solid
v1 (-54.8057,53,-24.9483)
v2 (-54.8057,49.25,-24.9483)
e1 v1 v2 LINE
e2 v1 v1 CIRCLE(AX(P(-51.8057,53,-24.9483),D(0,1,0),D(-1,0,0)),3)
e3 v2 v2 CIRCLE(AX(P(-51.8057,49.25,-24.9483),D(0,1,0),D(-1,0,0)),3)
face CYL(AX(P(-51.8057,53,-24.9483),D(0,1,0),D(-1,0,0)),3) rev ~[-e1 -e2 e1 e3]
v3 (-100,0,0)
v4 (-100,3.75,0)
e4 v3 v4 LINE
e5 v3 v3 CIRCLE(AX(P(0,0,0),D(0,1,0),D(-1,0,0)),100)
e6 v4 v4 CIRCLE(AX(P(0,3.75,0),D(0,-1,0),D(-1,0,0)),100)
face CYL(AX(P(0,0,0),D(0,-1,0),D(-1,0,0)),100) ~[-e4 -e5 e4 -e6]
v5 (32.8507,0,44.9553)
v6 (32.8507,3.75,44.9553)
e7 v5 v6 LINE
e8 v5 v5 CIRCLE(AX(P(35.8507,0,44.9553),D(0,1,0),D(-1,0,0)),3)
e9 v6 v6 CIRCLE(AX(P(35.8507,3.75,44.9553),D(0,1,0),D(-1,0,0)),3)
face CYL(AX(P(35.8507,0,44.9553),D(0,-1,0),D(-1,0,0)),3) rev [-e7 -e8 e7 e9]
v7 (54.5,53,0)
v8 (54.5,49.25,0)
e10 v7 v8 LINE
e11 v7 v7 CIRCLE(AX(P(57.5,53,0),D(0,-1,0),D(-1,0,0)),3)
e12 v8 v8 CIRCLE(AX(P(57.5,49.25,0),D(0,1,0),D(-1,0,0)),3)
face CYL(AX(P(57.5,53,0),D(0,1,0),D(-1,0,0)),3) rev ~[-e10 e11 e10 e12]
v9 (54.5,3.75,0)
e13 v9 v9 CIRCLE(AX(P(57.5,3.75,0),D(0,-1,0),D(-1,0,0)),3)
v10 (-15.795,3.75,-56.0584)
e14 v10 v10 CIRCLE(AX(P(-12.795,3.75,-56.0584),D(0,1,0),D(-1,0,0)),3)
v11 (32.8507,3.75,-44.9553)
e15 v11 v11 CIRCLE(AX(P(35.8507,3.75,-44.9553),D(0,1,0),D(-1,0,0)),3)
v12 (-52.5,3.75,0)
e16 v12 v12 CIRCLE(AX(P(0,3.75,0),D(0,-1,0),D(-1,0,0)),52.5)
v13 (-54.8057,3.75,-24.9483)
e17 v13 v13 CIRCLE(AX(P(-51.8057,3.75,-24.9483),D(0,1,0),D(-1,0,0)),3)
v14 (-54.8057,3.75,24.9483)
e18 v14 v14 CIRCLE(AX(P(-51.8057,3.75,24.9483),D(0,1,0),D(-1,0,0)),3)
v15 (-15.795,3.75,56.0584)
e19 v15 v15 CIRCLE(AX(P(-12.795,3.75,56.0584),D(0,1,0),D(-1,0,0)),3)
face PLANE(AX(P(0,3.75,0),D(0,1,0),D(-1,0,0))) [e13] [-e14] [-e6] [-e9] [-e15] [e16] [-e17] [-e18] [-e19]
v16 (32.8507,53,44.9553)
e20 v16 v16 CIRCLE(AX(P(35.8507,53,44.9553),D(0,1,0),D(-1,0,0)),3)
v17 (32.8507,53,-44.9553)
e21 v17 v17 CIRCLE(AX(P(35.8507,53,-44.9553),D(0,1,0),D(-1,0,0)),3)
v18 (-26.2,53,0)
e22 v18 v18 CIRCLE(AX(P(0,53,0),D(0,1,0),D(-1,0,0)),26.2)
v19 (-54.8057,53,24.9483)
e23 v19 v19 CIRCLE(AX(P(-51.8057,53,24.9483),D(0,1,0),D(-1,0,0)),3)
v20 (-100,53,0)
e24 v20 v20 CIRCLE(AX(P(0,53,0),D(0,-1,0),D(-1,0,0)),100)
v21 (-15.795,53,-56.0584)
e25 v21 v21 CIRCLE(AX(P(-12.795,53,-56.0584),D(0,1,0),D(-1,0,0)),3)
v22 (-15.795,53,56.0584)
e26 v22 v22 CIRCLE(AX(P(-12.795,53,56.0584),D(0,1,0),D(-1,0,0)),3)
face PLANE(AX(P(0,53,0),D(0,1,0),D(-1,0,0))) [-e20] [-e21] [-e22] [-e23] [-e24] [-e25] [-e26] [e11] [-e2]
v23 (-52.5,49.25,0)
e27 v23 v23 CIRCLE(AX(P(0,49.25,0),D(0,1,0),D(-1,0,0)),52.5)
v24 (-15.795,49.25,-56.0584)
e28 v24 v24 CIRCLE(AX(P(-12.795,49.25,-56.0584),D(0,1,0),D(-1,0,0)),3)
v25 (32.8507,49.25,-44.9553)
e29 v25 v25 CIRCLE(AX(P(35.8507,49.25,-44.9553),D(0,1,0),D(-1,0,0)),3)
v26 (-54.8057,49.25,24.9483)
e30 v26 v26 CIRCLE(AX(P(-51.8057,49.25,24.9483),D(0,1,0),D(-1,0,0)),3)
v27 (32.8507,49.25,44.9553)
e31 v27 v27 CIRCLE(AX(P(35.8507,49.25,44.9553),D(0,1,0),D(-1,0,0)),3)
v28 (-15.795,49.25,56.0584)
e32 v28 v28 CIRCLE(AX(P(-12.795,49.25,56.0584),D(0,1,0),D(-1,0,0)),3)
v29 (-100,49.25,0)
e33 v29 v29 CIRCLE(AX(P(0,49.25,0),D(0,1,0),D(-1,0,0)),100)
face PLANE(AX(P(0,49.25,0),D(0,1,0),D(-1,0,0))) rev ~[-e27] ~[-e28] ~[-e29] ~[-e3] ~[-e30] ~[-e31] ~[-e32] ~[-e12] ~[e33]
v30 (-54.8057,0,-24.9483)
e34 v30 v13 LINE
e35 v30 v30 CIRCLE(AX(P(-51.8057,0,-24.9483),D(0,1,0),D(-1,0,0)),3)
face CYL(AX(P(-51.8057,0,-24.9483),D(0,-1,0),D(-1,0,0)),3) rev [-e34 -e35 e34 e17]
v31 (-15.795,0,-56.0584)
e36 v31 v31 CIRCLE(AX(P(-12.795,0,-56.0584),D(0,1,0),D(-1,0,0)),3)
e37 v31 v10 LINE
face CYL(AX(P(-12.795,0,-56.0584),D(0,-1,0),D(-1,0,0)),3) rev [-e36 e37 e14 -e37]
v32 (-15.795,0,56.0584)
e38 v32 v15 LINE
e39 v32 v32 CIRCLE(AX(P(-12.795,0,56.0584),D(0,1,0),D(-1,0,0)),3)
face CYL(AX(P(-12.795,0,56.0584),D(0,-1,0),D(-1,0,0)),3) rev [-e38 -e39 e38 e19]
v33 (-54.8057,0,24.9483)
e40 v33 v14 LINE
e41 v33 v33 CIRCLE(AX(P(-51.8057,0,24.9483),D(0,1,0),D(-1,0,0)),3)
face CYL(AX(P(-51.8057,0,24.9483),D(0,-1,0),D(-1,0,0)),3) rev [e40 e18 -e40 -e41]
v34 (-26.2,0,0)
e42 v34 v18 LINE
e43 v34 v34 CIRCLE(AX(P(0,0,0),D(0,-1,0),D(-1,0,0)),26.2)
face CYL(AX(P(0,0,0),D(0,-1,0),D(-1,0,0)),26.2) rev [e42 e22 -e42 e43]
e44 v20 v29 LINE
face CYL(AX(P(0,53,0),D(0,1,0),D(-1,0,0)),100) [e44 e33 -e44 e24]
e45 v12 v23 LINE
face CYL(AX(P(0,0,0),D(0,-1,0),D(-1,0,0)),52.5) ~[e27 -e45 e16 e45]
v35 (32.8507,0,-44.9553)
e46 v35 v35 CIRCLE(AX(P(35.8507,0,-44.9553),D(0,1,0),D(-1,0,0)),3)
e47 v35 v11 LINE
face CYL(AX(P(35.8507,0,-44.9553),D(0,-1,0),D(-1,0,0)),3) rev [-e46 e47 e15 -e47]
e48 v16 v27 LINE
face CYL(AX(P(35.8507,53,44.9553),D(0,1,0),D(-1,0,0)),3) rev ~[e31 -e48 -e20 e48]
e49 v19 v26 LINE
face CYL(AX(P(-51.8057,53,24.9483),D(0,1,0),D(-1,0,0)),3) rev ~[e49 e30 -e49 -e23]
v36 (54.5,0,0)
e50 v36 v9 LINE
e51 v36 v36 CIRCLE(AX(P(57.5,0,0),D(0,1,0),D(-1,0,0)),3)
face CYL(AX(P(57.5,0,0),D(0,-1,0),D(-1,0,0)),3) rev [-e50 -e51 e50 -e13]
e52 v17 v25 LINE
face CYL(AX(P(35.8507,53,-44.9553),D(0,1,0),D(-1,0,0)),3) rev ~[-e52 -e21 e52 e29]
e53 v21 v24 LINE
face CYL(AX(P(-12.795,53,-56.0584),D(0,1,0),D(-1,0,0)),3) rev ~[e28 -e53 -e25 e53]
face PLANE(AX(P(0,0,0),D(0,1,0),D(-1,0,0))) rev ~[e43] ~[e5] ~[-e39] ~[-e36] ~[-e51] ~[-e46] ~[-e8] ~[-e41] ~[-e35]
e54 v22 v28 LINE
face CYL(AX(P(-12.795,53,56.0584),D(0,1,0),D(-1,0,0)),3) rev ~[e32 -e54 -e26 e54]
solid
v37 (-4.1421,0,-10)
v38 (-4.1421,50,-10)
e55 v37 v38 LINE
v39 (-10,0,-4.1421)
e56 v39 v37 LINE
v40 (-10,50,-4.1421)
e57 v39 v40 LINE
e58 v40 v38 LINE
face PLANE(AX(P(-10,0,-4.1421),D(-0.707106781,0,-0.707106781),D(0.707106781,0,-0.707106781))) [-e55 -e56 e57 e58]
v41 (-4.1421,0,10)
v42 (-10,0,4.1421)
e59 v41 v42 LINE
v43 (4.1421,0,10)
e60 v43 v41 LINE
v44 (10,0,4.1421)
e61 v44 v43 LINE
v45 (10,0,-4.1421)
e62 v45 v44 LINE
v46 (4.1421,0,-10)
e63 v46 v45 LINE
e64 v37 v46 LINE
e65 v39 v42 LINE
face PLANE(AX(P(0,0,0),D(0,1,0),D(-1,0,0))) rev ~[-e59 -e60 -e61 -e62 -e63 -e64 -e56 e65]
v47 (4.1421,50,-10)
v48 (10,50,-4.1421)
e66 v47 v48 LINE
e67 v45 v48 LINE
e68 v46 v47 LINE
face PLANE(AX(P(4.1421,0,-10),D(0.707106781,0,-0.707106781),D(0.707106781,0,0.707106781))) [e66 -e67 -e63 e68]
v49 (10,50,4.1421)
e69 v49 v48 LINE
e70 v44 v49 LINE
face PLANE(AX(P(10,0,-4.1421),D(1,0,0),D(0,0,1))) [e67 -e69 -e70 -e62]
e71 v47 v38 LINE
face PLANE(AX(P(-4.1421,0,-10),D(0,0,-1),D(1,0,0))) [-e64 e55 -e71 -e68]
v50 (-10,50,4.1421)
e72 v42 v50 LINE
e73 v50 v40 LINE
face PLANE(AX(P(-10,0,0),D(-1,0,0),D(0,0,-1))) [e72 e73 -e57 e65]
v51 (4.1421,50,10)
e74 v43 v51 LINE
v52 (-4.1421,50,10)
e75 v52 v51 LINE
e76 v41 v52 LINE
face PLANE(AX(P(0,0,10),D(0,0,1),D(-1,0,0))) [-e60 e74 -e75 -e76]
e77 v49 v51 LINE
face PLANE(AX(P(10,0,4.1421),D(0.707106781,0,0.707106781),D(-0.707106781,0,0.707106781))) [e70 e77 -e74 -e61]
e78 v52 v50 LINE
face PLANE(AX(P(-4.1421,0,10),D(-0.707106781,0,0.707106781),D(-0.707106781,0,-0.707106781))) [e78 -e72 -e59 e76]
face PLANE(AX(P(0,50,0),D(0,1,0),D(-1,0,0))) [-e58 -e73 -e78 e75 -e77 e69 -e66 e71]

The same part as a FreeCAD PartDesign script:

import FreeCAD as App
import Part
import Sketcher
from FreeCAD import Vector
Q = App.Units.Quantity


def add_polygon(sketch, points):
    """Adds a closed chain of lines whose ends are joined by coincident constraints."""
    first, n = sketch.GeometryCount, len(points)
    for a, b in zip(points, points[1:] + points[:1]):
        sketch.addGeometry(Part.LineSegment(App.Vector(*a, 0), App.Vector(*b, 0)), False)
    for i in range(n):
        sketch.addConstraint(Sketcher.Constraint("Coincident", first + i, 2, first + (i + 1) % n, 1))

doc = App.newDocument("Part")
body = doc.addObject("PartDesign::Body", "Body")
body.AllowCompound = True

# Sketch on XZ plane
sketch1 = body.newObject("Sketcher::SketchObject", "Sketch")
sketch1.AttachmentSupport = (doc.getObject("XZ_Plane"), [""])
sketch1.MapMode = "FlatFace"
sketch1.addGeometry([
    Part.Circle(Vector(0, 0, 0), Vector(0, 0, 1), 100),  # 0
    Part.Circle(Vector(0, 0, 0), Vector(0, 0, 1), 52.5),  # 1
    Part.Circle(Vector(-12.8, -56.1, 0), Vector(0, 0, 1), 3),  # 2
    Part.Circle(Vector(-51.8, -24.9, 0), Vector(0, 0, 1), 3),  # 3
    Part.Circle(Vector(-12.8, 56.1, 0), Vector(0, 0, 1), 3),  # 4
    Part.Circle(Vector(-51.8, 24.9, 0), Vector(0, 0, 1), 3),  # 5
    Part.Circle(Vector(35.9, -45, 0), Vector(0, 0, 1), 3),  # 6
    Part.Circle(Vector(57.5, 0, 0), Vector(0, 0, 1), 3),  # 7
    Part.Circle(Vector(35.9, 45, 0), Vector(0, 0, 1), 3),  # 8
], False)
sketch1.addConstraint([
    Sketcher.Constraint("Coincident", 0, 3, -1, 1),
    Sketcher.Constraint("Coincident", 1, 3, -1, 1),
    Sketcher.Constraint("Equal", 2, 3),
    Sketcher.Constraint("Equal", 3, 4),
    Sketcher.Constraint("Equal", 4, 5),
    Sketcher.Constraint("Equal", 5, 6),
    Sketcher.Constraint("Equal", 6, 7),
    Sketcher.Constraint("Equal", 7, 8),
    Sketcher.Constraint("Symmetric", 2, 3, 4, 3, -1),
    Sketcher.Constraint("Symmetric", 3, 3, 5, 3, -1),
    Sketcher.Constraint("Symmetric", 6, 3, 8, 3, -1),
    Sketcher.Constraint("PointOnObject", 7, 3, -1),
    Sketcher.Constraint("Diameter", 0, Q("200 mm")),
    Sketcher.Constraint("Diameter", 1, Q("105 mm")),
    Sketcher.Constraint("Diameter", 2, Q("6 mm")),
    Sketcher.Constraint("DistanceX", -1, 1, 7, 3, Q("57.5 mm")),
    Sketcher.Constraint("DistanceY", 2, 3, 3, 3, Q("31.11 mm")),
    Sketcher.Constraint("DistanceX", 2, 3, -1, 1, Q("12.795 mm")),
    Sketcher.Constraint("DistanceY", 2, 3, 6, 3, Q("11.103 mm")),
    Sketcher.Constraint("DistanceY", 2, 3, -1, 1, Q("56.0584 mm")),
    Sketcher.Constraint("DistanceX", 3, 3, -1, 1, Q("51.8057 mm")),
    Sketcher.Constraint("DistanceX", -1, 1, 6, 3, Q("35.8507 mm")),
])
pad1 = body.newObject("PartDesign::Pad", "Pad")
pad1.Profile = sketch1
pad1.Length = 3.75
pad1.Reversed = True

# Sketch on XZ plane
sketch2 = body.newObject("Sketcher::SketchObject", "Sketch001")
sketch2.AttachmentSupport = (doc.getObject("XZ_Plane"), [""])
sketch2.MapMode = "FlatFace"
sketch2.addGeometry([
    Part.Circle(Vector(0, 0, 0), Vector(0, 0, 1), 52),
    Part.Circle(Vector(0, 0, 0), Vector(0, 0, 1), 26),
], False)
sketch2.addConstraint([
    Sketcher.Constraint("Coincident", 0, 3, -1, 1),
    Sketcher.Constraint("Coincident", 1, 3, -1, 1),
    Sketcher.Constraint("Diameter", 0, Q("105 mm")),
    Sketcher.Constraint("Diameter", 1, Q("52.4 mm")),
])
pad2 = body.newObject("PartDesign::Pad", "Pad001")
pad2.Profile = sketch2
pad2.Length = 53
pad2.Reversed = True

# Sketch on XZ plane
sketch3 = body.newObject("Sketcher::SketchObject", "Sketch002")
sketch3.AttachmentSupport = (doc.getObject("XZ_Plane"), [""])
sketch3.MapMode = "FlatFace"
sketch3.AttachmentOffset = App.Placement(Vector(0, 0, -53), App.Rotation())
sketch3.addGeometry([
    Part.Circle(Vector(0, 0, 0), Vector(0, 0, 1), 100),  # 0
    Part.Circle(Vector(0, 0, 0), Vector(0, 0, 1), 52.5),  # 1
    Part.Circle(Vector(-12.8, -56.1, 0), Vector(0, 0, 1), 3),  # 2
    Part.Circle(Vector(-51.8, -24.9, 0), Vector(0, 0, 1), 3),  # 3
    Part.Circle(Vector(-12.8, 56.1, 0), Vector(0, 0, 1), 3),  # 4
    Part.Circle(Vector(-51.8, 24.9, 0), Vector(0, 0, 1), 3),  # 5
    Part.Circle(Vector(35.9, -45, 0), Vector(0, 0, 1), 3),  # 6
    Part.Circle(Vector(57.5, 0, 0), Vector(0, 0, 1), 3),  # 7
    Part.Circle(Vector(35.9, 45, 0), Vector(0, 0, 1), 3),  # 8
], False)
sketch3.addConstraint([
    Sketcher.Constraint("Coincident", 0, 3, -1, 1),
    Sketcher.Constraint("Coincident", 1, 3, -1, 1),
    Sketcher.Constraint("Equal", 2, 3),
    Sketcher.Constraint("Equal", 3, 4),
    Sketcher.Constraint("Equal", 4, 5),
    Sketcher.Constraint("Equal", 5, 6),
    Sketcher.Constraint("Equal", 6, 7),
    Sketcher.Constraint("Equal", 7, 8),
    Sketcher.Constraint("Symmetric", 2, 3, 4, 3, -1),
    Sketcher.Constraint("Symmetric", 3, 3, 5, 3, -1),
    Sketcher.Constraint("Symmetric", 6, 3, 8, 3, -1),
    Sketcher.Constraint("PointOnObject", 7, 3, -1),
    Sketcher.Constraint("Diameter", 0, Q("200 mm")),
    Sketcher.Constraint("Diameter", 1, Q("105 mm")),
    Sketcher.Constraint("Diameter", 2, Q("6 mm")),
    Sketcher.Constraint("DistanceX", -1, 1, 7, 3, Q("57.5 mm")),
    Sketcher.Constraint("DistanceY", 2, 3, 3, 3, Q("31.11 mm")),
    Sketcher.Constraint("DistanceX", 2, 3, -1, 1, Q("12.795 mm")),
    Sketcher.Constraint("DistanceY", 2, 3, 6, 3, Q("11.103 mm")),
    Sketcher.Constraint("DistanceY", 2, 3, -1, 1, Q("56.0584 mm")),
    Sketcher.Constraint("DistanceX", 3, 3, -1, 1, Q("51.8057 mm")),
    Sketcher.Constraint("DistanceX", -1, 1, 6, 3, Q("35.8507 mm")),
])
pad3 = body.newObject("PartDesign::Pad", "Pad002")
pad3.Profile = sketch3
pad3.Length = 3.75

# Sketch on XZ plane
sketch4 = body.newObject("Sketcher::SketchObject", "Sketch003")
sketch4.AttachmentSupport = (doc.getObject("XZ_Plane"), [""])
sketch4.MapMode = "FlatFace"
add_polygon(sketch4, [(-10, -4), (-10, 4), (-4, 10), (4, 10), (10, 4), (10, -4), (4, -10), (-4, -10)])  # lines 0-7
sketch4.addConstraint([
    Sketcher.Constraint("Vertical", 0),
    Sketcher.Constraint("Horizontal", 2),
    Sketcher.Constraint("Vertical", 4),
    Sketcher.Constraint("Horizontal", 6),
    Sketcher.Constraint("Symmetric", 0, 2, 4, 2, -1, 1),
    Sketcher.Constraint("Symmetric", 1, 2, 5, 2, -1, 1),
    Sketcher.Constraint("Perpendicular", 1, 3),
    Sketcher.Constraint("Perpendicular", 5, 7),
    Sketcher.Constraint("Horizontal", 0, 2, 3, 2),
    Sketcher.Constraint("Horizontal", 4, 2, 7, 2),
    Sketcher.Constraint("Vertical", 2, 2, 5, 2),
    Sketcher.Constraint("Equal", 6, 0),
    Sketcher.Constraint("DistanceX", 0, 2, 3, 2, Q("20 mm")),
    Sketcher.Constraint("DistanceX", 2, 1, 2, 2, Q("8.2842 mm")),
])
pad4 = body.newObject("PartDesign::Pad", "Pad003")
pad4.Profile = sketch4
pad4.Length = 50
pad4.Reversed = True

doc.recompute()
